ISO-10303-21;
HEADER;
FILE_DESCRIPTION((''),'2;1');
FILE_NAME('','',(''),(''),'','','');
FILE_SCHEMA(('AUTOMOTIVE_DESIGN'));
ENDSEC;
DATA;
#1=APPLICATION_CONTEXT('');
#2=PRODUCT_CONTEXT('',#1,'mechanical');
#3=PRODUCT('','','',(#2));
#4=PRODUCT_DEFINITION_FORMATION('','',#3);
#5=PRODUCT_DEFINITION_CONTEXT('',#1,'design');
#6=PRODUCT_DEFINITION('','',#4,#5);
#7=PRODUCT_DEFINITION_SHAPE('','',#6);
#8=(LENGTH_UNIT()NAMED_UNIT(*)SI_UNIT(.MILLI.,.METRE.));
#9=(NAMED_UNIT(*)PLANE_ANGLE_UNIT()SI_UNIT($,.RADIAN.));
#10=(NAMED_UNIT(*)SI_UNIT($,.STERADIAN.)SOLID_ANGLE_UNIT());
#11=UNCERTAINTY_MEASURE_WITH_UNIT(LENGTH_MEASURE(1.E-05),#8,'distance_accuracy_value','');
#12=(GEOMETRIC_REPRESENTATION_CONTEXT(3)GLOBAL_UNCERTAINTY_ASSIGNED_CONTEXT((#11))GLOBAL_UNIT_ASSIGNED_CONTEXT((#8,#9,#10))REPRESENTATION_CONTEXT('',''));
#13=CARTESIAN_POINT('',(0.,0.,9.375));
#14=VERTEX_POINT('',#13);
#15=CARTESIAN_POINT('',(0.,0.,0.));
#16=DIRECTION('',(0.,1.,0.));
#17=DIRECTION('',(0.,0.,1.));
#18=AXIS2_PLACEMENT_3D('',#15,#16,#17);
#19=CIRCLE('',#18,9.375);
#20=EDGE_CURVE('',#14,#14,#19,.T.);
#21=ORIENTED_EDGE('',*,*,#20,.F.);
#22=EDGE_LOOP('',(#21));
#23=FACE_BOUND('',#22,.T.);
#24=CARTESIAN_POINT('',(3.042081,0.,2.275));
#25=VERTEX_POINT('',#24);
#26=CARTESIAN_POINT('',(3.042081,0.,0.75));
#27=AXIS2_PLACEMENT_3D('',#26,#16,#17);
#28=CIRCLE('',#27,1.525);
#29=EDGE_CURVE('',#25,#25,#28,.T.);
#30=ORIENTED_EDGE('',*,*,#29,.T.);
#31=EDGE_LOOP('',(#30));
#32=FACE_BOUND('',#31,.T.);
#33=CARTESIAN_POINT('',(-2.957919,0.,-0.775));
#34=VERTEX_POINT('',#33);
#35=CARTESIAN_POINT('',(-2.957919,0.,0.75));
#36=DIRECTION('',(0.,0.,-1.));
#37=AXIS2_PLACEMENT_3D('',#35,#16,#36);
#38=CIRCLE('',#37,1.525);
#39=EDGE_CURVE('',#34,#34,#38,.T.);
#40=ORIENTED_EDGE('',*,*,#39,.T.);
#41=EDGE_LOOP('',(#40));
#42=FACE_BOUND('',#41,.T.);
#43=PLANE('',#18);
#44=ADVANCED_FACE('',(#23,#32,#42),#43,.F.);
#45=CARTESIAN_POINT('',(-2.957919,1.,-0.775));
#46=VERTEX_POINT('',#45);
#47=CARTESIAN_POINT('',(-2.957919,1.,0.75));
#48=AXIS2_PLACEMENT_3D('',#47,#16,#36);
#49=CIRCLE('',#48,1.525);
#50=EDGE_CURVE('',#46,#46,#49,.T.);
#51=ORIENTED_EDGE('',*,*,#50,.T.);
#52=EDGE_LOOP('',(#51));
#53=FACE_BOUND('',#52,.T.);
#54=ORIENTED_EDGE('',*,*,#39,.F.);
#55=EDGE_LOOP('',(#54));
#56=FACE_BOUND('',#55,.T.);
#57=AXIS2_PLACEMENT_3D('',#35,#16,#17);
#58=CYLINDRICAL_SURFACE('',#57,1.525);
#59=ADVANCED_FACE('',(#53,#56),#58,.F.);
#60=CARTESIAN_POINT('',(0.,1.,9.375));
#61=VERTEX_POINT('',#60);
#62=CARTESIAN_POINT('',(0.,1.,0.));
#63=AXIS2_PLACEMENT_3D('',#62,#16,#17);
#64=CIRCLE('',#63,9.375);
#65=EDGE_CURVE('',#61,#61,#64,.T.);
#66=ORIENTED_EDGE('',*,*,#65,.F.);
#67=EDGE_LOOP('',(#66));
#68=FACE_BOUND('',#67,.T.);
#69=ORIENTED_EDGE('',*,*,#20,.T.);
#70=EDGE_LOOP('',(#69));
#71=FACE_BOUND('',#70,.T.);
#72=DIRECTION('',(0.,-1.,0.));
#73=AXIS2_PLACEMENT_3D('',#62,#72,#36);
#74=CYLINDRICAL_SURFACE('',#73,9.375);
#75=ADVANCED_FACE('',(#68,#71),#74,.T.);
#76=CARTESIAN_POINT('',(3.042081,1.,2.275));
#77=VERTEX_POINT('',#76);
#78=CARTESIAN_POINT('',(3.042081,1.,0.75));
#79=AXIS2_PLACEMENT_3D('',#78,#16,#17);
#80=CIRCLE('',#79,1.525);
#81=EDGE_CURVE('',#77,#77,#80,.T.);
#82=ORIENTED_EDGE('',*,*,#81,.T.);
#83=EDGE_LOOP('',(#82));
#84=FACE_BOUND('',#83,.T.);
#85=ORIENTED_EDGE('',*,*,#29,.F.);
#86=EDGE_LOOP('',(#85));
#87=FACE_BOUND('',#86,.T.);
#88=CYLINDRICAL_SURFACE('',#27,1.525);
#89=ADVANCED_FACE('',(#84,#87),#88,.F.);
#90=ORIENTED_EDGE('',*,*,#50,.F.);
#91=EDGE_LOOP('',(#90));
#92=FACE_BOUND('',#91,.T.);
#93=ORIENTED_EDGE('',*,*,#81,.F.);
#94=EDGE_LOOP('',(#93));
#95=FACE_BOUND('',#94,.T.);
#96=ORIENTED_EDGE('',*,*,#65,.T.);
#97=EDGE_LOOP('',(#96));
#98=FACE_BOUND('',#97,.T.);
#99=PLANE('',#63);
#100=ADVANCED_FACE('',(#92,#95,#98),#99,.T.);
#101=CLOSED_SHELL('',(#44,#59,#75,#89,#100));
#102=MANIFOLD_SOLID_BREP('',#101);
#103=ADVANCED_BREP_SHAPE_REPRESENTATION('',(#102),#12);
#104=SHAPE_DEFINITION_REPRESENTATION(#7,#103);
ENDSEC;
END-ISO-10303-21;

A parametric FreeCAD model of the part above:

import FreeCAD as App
import Part
import Sketcher

doc = App.newDocument("Part")
params = doc.addObject("Spreadsheet::Sheet", "Params")
for row, (alias, value) in enumerate([
    ("sketch1_diameter", "18.75 mm"),
    ("pad1_length", "1 mm"),
    ("sketch2_diameter", "3.05 mm"),
], start=1):
    params.set(f"A{row}", alias)
    params.set(f"B{row}", "=" + value)
    params.setAlias(f"B{row}", alias)

body = doc.addObject("PartDesign::Body", "Body")

# Sketch on XZ plane
sketch1 = doc.addObject("Sketcher::SketchObject", "Sketch")
body.addObject(sketch1)
sketch1.AttachmentSupport = (doc.XZ_Plane, [""])
sketch1.MapMode = "FlatFace"
sketch1.addGeometry(Part.Circle(App.Vector(0, 0, 0), App.Vector(0, 0, 1), 9), False)
sketch1.addConstraint([
    Sketcher.Constraint("Coincident", 0, 3, -1, 1),
    Sketcher.Constraint("Diameter", 0, 18.75),
])
sketch1.setExpression("Constraints[1]", "Params.sketch1_diameter")
pad1 = doc.addObject("PartDesign::Pad", "Pad")
body.addObject(pad1)
pad1.Profile = sketch1
pad1.setExpression("Length", "Params.pad1_length")
pad1.Reversed = True

# Sketch on XZ plane
sketch2 = doc.addObject("Sketcher::SketchObject", "Sketch001")
body.addObject(sketch2)
sketch2.AttachmentSupport = (doc.XZ_Plane, [""])
sketch2.MapMode = "FlatFace"
sketch2.AttachmentOffset = App.Placement(App.Vector(0, 0, -1), App.Rotation())
sketch2.addGeometry([
    Part.Circle(App.Vector(3, 0.8, 0), App.Vector(0, 0, 1), 1.5),
    Part.Circle(App.Vector(-3, 0.8, 0), App.Vector(0, 0, 1), 1.5),
], False)
sketch2.addConstraint([
    Sketcher.Constraint("Equal", 0, 1),
    Sketcher.Constraint("Horizontal", 0, 3, 1, 3),
    Sketcher.Constraint("Diameter", 0, 3.05),
    Sketcher.Constraint("DistanceX", 1, 3, 0, 3, 6.0),
    Sketcher.Constraint("DistanceY", -1, 1, 0, 3, 0.75),
    Sketcher.Constraint("DistanceX", -1, 1, 0, 3, 3.042081),
])
sketch2.setExpression("Constraints[2]", "Params.sketch2_diameter")
pocket1 = doc.addObject("PartDesign::Pocket", "Pocket")
body.addObject(pocket1)
pocket1.Profile = sketch2
pocket1.Type = "ThroughAll"
pocket1.Reversed = True

doc.recompute()
